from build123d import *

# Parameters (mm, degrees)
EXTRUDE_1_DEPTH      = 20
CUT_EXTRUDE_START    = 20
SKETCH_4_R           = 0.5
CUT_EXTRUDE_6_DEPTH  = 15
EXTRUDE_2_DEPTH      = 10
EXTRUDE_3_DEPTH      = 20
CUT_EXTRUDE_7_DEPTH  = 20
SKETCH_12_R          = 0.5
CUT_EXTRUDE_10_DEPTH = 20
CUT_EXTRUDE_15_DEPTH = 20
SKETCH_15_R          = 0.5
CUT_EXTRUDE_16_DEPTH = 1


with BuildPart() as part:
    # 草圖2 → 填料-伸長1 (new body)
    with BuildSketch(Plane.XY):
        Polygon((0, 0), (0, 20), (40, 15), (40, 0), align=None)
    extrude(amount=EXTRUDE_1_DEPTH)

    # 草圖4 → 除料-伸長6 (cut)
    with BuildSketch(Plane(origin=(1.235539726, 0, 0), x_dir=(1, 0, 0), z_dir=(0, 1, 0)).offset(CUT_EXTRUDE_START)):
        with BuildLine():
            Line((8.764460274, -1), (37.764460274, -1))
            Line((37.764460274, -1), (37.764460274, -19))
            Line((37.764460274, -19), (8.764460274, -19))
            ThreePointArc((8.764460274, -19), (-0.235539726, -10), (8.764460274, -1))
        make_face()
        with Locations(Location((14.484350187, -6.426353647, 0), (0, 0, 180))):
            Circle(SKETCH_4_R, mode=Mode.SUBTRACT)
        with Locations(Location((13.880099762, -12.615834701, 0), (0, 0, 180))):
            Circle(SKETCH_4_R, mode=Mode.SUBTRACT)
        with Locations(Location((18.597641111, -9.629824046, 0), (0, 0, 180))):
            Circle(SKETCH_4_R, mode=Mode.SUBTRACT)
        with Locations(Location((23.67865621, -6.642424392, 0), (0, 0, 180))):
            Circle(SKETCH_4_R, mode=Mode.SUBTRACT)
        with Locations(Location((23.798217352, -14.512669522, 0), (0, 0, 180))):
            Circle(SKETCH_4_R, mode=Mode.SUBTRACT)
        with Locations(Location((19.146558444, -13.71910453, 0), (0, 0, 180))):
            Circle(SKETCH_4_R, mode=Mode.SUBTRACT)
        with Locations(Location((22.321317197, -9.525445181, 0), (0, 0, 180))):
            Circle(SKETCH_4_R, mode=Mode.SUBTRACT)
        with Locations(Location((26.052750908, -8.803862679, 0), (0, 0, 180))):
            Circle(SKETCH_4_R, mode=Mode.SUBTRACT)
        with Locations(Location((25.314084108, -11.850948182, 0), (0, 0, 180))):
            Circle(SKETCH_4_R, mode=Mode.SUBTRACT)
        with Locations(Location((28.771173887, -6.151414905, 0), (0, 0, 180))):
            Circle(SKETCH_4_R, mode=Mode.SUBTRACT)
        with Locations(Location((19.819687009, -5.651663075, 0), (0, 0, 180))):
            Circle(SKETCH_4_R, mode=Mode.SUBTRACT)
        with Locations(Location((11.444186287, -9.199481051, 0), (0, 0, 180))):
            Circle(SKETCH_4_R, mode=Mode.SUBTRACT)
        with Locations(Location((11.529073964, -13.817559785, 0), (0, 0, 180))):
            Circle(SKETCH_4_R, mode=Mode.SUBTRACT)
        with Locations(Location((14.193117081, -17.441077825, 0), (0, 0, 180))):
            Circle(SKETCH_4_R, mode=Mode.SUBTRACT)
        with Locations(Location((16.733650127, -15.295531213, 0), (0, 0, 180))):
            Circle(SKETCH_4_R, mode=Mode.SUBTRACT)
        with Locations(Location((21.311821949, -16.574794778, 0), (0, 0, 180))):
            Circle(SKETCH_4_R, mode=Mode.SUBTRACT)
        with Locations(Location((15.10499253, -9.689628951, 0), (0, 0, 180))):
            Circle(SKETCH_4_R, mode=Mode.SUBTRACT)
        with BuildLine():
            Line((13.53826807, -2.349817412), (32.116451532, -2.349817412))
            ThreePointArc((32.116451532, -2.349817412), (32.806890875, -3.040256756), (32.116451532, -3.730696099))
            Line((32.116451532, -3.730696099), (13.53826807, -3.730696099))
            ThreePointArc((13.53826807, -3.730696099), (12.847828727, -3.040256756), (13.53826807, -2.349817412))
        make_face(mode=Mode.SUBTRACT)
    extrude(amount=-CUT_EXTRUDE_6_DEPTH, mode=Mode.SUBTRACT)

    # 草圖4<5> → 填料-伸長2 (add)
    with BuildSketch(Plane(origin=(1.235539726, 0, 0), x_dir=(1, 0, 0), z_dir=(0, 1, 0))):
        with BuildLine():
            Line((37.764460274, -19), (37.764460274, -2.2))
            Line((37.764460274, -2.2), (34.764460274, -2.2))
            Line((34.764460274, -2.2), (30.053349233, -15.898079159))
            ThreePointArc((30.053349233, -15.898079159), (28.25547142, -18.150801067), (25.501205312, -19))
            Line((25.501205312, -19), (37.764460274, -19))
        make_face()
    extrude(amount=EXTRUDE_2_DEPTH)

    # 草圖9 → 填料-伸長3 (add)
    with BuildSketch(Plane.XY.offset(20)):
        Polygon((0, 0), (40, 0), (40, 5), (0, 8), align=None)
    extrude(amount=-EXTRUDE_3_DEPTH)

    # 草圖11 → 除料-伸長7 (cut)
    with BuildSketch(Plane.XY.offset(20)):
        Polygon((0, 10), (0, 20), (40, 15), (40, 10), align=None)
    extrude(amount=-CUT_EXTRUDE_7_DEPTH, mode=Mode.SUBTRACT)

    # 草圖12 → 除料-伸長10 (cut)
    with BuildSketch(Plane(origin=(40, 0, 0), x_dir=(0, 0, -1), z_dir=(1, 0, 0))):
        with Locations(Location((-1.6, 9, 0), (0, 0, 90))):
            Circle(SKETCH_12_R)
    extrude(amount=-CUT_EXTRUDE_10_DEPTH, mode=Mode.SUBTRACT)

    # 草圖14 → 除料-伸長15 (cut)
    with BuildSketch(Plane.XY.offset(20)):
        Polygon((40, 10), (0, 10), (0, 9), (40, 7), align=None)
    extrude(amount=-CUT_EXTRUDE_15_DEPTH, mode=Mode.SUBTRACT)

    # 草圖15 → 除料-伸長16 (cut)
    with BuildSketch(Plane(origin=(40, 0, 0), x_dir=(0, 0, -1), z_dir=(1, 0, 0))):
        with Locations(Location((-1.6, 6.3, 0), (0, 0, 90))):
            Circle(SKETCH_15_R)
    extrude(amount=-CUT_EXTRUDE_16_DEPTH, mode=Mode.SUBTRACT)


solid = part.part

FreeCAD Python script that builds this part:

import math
import FreeCAD as App
import Part
import Sketcher

V = App.Vector
Q = App.Units.Quantity


def add_polygon(sketch, points):
    """Adds a closed chain of lines whose ends are joined by coincident constraints."""
    first, n = sketch.GeometryCount, len(points)
    for a, b in zip(points, points[1:] + points[:1]):
        sketch.addGeometry(Part.LineSegment(App.Vector(*a, 0), App.Vector(*b, 0)), False)
    for i in range(n):
        sketch.addConstraint(Sketcher.Constraint("Coincident", first + i, 2, first + (i + 1) % n, 1))

doc = App.newDocument("Part")
body = doc.addObject("PartDesign::Body", "Body")

sketch1 = body.newObject("Sketcher::SketchObject", "Sketch")
sketch1.AttachmentSupport = (doc.getObject("XY_Plane"), [""])
sketch1.MapMode = "FlatFace"
add_polygon(sketch1, [(0, 20), (0, 0), (40, 0), (40, 15)])
sketch1.addConstraint([
    Sketcher.Constraint("Vertical", 0),
    Sketcher.Constraint("Horizontal", 1),
    Sketcher.Constraint("Vertical", 2),
    Sketcher.Constraint("Coincident", 0, 2, -1, 1),
    Sketcher.Constraint("DistanceX", 1, 1, 1, 2, Q("40 mm")),
    Sketcher.Constraint("DistanceY", 0, 2, 0, 1, Q("20 mm")),
    Sketcher.Constraint("DistanceY", 2, 1, 2, 2, Q("15 mm")),
])
pad1 = body.newObject("PartDesign::Pad", "Pad")
pad1.Profile = sketch1
pad1.Length = 20

sketch2 = body.newObject("Sketcher::SketchObject", "Sketch001")
sketch2.AttachmentSupport = (doc.getObject("XZ_Plane"), [""])
sketch2.MapMode = "FlatFace"
sketch2.AttachmentOffset = App.Placement(V(0, 0, -20), App.Rotation())
sketch2.addGeometry([
    Part.LineSegment(V(39, 1, 0), V(10, 1, 0)),
    Part.ArcOfCircle(Part.Circle(V(10, 10, 0), V(0, 0, 1), 9), math.radians(90), math.radians(270)),
    Part.LineSegment(V(10, 19, 0), V(39, 19, 0)),
    Part.LineSegment(V(39, 19, 0), V(39, 1, 0)),
    Part.Circle(V(25.033757, 14.51267, 0), V(0, 0, 1), 0.5),
    Part.Circle(V(26.549624, 11.850948, 0), V(0, 0, 1), 0.5),
    Part.Circle(V(22.547362, 16.574795, 0), V(0, 0, 1), 0.5),
    Part.Circle(V(17.96919, 15.295531, 0), V(0, 0, 1), 0.5),
    Part.Circle(V(15.428657, 17.441078, 0), V(0, 0, 1), 0.5),
    Part.Circle(V(20.382098, 13.719105, 0), V(0, 0, 1), 0.5),
    Part.Circle(V(15.115639, 12.615835, 0), V(0, 0, 1), 0.5),
    Part.Circle(V(12.764614, 13.81756, 0), V(0, 0, 1), 0.5),
    Part.Circle(V(27.288291, 8.803863, 0), V(0, 0, 1), 0.5),
    Part.Circle(V(23.556857, 9.525445, 0), V(0, 0, 1), 0.5),
    Part.Circle(V(24.914196, 6.642424, 0), V(0, 0, 1), 0.5),
    Part.Circle(V(30.006714, 6.151415, 0), V(0, 0, 1), 0.5),
    Part.LineSegment(V(14.773808, 2.349817, 0), V(33.351991, 2.349817, 0)),
    Part.ArcOfCircle(Part.Circle(V(33.351991, 3.040257, 0), V(0, 0, 1), 0.690439), math.radians(-90), math.radians(90)),
    Part.LineSegment(V(33.351991, 3.730696, 0), V(14.773808, 3.730696, 0)),
    Part.ArcOfCircle(Part.Circle(V(14.773808, 3.040257, 0), V(0, 0, 1), 0.690439), math.radians(90), math.radians(270)),
    Part.Circle(V(19.833181, 9.629824, 0), V(0, 0, 1), 0.5),
    Part.Circle(V(16.340532, 9.689629, 0), V(0, 0, 1), 0.5),
    Part.Circle(V(12.679726, 9.199481, 0), V(0, 0, 1), 0.5),
    Part.Circle(V(15.71989, 6.426354, 0), V(0, 0, 1), 0.5),
    Part.Circle(V(21.055227, 5.651663, 0), V(0, 0, 1), 0.5),
], False)
sketch2.addConstraint([
    Sketcher.Constraint("Tangent", 0, 2, 1, 2),
    Sketcher.Constraint("Tangent", 1, 1, 2, 1),
    Sketcher.Constraint("Coincident", 2, 2, 3, 1),
    Sketcher.Constraint("Coincident", 3, 2, 0, 1),
    Sketcher.Constraint("Tangent", 16, 2, 17, 1),
    Sketcher.Constraint("Tangent", 17, 2, 18, 1),
    Sketcher.Constraint("Tangent", 18, 2, 19, 1),
    Sketcher.Constraint("Tangent", 19, 2, 16, 1),
    Sketcher.Constraint("Horizontal", 0),
    Sketcher.Constraint("Horizontal", 2),
    Sketcher.Constraint("Vertical", 3),
    Sketcher.Constraint("Horizontal", 16),
    Sketcher.Constraint("Horizontal", 18),
    Sketcher.Constraint("Equal", 4, 5),
    Sketcher.Constraint("Equal", 5, 6),
    Sketcher.Constraint("Equal", 6, 7),
    Sketcher.Constraint("Equal", 7, 8),
    Sketcher.Constraint("Equal", 8, 9),
    Sketcher.Constraint("Equal", 9, 10),
    Sketcher.Constraint("Equal", 10, 11),
    Sketcher.Constraint("Equal", 11, 12),
    Sketcher.Constraint("Equal", 12, 13),
    Sketcher.Constraint("Equal", 13, 14),
    Sketcher.Constraint("Equal", 14, 15),
    Sketcher.Constraint("Equal", 15, 20),
    Sketcher.Constraint("Equal", 20, 21),
    Sketcher.Constraint("Equal", 21, 22),
    Sketcher.Constraint("Equal", 22, 23),
    Sketcher.Constraint("Equal", 23, 24),
    Sketcher.Constraint("Diameter", 4, Q("1 mm")),
    Sketcher.Constraint("Radius", 1, Q("9 mm")),
    Sketcher.Constraint("DistanceX", 0, 2, 0, 1, Q("29 mm")),
    Sketcher.Constraint("DistanceX", -1, 1, 1, 3, Q("10 mm")),
    Sketcher.Constraint("DistanceY", -1, 1, 1, 3, Q("10 mm")),
    Sketcher.Constraint("Radius", 17, Q("0.690439 mm")),
    Sketcher.Constraint("DistanceX", -1, 1, 9, 3, Q("20.382098 mm")),
    Sketcher.Constraint("DistanceX", 8, 3, 4, 3, Q("9.6051 mm")),
    Sketcher.Constraint("DistanceX", 7, 3, 12, 3, Q("9.319101 mm")),
    Sketcher.Constraint("DistanceX", 13, 3, 4, 3, Q("1.4769 mm")),
    Sketcher.Constraint("DistanceX", 12, 3, 17, 3, Q("6.063701 mm")),
    Sketcher.Constraint("DistanceY", 14, 3, 20, 3, Q("2.9874 mm")),
    Sketcher.Constraint("DistanceX", 16, 1, 16, 2, Q("18.578183 mm")),
    Sketcher.Constraint("DistanceY", -1, 1, 4, 3, Q("14.51267 mm")),
    Sketcher.Constraint("DistanceY", -1, 1, 5, 3, Q("11.850948 mm")),
    Sketcher.Constraint("DistanceX", -1, 1, 6, 3, Q("22.547362 mm")),
    Sketcher.Constraint("DistanceX", -1, 1, 7, 3, Q("17.96919 mm")),
    Sketcher.Constraint("DistanceY", -1, 1, 7, 3, Q("15.295531 mm")),
    Sketcher.Constraint("DistanceX", -1, 1, 10, 3, Q("15.115639 mm")),
    Sketcher.Constraint("DistanceY", -1, 1, 11, 3, Q("13.81756 mm")),
    Sketcher.Constraint("DistanceX", -1, 1, 20, 3, Q("19.833181 mm")),
    Sketcher.Constraint("DistanceY", -1, 1, 21, 3, Q("9.689629 mm")),
    Sketcher.Constraint("DistanceY", -1, 1, 22, 3, Q("9.199481 mm")),
    Sketcher.Constraint("DistanceX", -1, 1, 23, 3, Q("15.71989 mm")),
    Sketcher.Constraint("DistanceY", 4, 3, 8, 3, Q("2.928408 mm")),
    Sketcher.Constraint("DistanceY", 9, 3, 6, 3, Q("2.85569 mm")),
    Sketcher.Constraint("DistanceX", 9, 3, 4, 3, Q("4.651659 mm")),
    Sketcher.Constraint("DistanceY", 10, 3, 9, 3, Q("1.10327 mm")),
    Sketcher.Constraint("DistanceY", 12, 3, 9, 3, Q("4.915242 mm")),
    Sketcher.Constraint("DistanceY", 12, 3, 7, 3, Q("6.491669 mm")),
    Sketcher.Constraint("DistanceY", 13, 3, 9, 3, Q("4.193659 mm")),
    Sketcher.Constraint("DistanceX", 13, 3, 14, 3, Q("1.357339 mm")),
    Sketcher.Constraint("DistanceY", 14, 3, 13, 3, Q("2.883021 mm")),
    Sketcher.Constraint("DistanceY", 15, 3, 14, 3, Q("0.491009 mm")),
    Sketcher.Constraint("DistanceX", 5, 3, 15, 3, Q("3.45709 mm")),
    Sketcher.Constraint("DistanceY", 17, 3, 15, 3, Q("3.111158 mm")),
    Sketcher.Constraint("DistanceX", 21, 3, 20, 3, Q("3.492649 mm")),
    Sketcher.Constraint("DistanceX", 11, 3, 21, 3, Q("3.575919 mm")),
    Sketcher.Constraint("DistanceX", 22, 3, 19, 3, Q("2.094082 mm")),
    Sketcher.Constraint("DistanceY", 23, 3, 20, 3, Q("3.20347 mm")),
    Sketcher.Constraint("DistanceX", 24, 3, 14, 3, Q("3.858969 mm")),
    Sketcher.Constraint("DistanceY", 24, 3, 14, 3, Q("0.990761 mm")),
    Sketcher.Constraint("DistanceX", -1, 1, 5, 3, Q("26.549624 mm")),
])
pocket1 = body.newObject("PartDesign::Pocket", "Pocket")
pocket1.Profile = sketch2
pocket1.Length = 15
pocket1.Reversed = True

sketch3 = body.newObject("Sketcher::SketchObject", "Sketch002")
sketch3.AttachmentSupport = (doc.getObject("XZ_Plane"), [""])
sketch3.MapMode = "FlatFace"
sketch3.addGeometry([
    Part.LineSegment(V(39, 19, 0), V(39, 2.2, 0)),
    Part.LineSegment(V(39, 2.2, 0), V(36, 2.2, 0)),
    Part.LineSegment(V(36, 2.2, 0), V(31.288889, 15.898079, 0)),
    Part.ArcOfCircle(Part.Circle(V(26.736745, 14.108849, 0), V(0, 0, 1), 4.891151), math.radians(21.457418), math.radians(90)),
    Part.LineSegment(V(26.736745, 19, 0), V(39, 19, 0)),
], False)
sketch3.addConstraint([
    Sketcher.Constraint("Coincident", 0, 2, 1, 1),
    Sketcher.Constraint("Coincident", 1, 2, 2, 1),
    Sketcher.Constraint("Coincident", 2, 2, 3, 1),
    Sketcher.Constraint("Tangent", 3, 2, 4, 1),
    Sketcher.Constraint("Coincident", 4, 2, 0, 1),
    Sketcher.Constraint("Vertical", 0),
    Sketcher.Constraint("Horizontal", 1),
    Sketcher.Constraint("Horizontal", 4),
    Sketcher.Constraint("DistanceX", 1, 2, 1, 1, Q("3 mm")),
    Sketcher.Constraint("DistanceY", 0, 2, 0, 1, Q("16.8 mm")),
    Sketcher.Constraint("DistanceX", -1, 1, 0, 2, Q("39 mm")),
    Sketcher.Constraint("DistanceY", -1, 1, 3, 2, Q("19 mm")),
    Sketcher.Constraint("Radius", 3, Q("4.891151 mm")),
    Sketcher.Constraint("DistanceX", 4, 1, 4, 2, Q("12.263255 mm")),
    Sketcher.Constraint("DistanceX", -1, 1, 2, 2, Q("31.288889 mm")),
])
pad2 = body.newObject("PartDesign::Pad", "Pad001")
pad2.Profile = sketch3
pad2.Length = 10
pad2.Reversed = True

sketch4 = body.newObject("Sketcher::SketchObject", "Sketch003")
sketch4.AttachmentSupport = (doc.getObject("XY_Plane"), [""])
sketch4.MapMode = "FlatFace"
sketch4.AttachmentOffset = App.Placement(V(0, 0, 20), App.Rotation())
add_polygon(sketch4, [(0, 0), (40, 0), (40, 5), (0, 8)])
sketch4.addConstraint([
    Sketcher.Constraint("Horizontal", 0),
    Sketcher.Constraint("Vertical", 1),
    Sketcher.Constraint("Vertical", 3),
    Sketcher.Constraint("Coincident", 3, 2, -1, 1),
    Sketcher.Constraint("DistanceX", 0, 1, 0, 2, Q("40 mm")),
    Sketcher.Constraint("DistanceY", 1, 1, 1, 2, Q("5 mm")),
    Sketcher.Constraint("DistanceY", 3, 2, 3, 1, Q("8 mm")),
])
pad3 = body.newObject("PartDesign::Pad", "Pad002")
pad3.Profile = sketch4
pad3.Length = 20
pad3.Reversed = True

sketch5 = body.newObject("Sketcher::SketchObject", "Sketch004")
sketch5.AttachmentSupport = (doc.getObject("XY_Plane"), [""])
sketch5.MapMode = "FlatFace"
sketch5.AttachmentOffset = App.Placement(V(0, 0, 20), App.Rotation())
add_polygon(sketch5, [(0, 20), (0, 10), (40, 10), (40, 15)])
sketch5.addConstraint([
    Sketcher.Constraint("Vertical", 0),
    Sketcher.Constraint("Horizontal", 1),
    Sketcher.Constraint("Vertical", 2),
    Sketcher.Constraint("PointOnObject", 0, 2, -2),
    Sketcher.Constraint("DistanceX", 1, 1, 1, 2, Q("40 mm")),
    Sketcher.Constraint("DistanceY", 0, 2, 0, 1, Q("10 mm")),
    Sketcher.Constraint("DistanceY", 2, 1, 2, 2, Q("5 mm")),
    Sketcher.Constraint("DistanceY", -1, 1, 0, 2, Q("10 mm")),
])
pocket2 = body.newObject("PartDesign::Pocket", "Pocket001")
pocket2.Profile = sketch5
pocket2.Length = 20

sketch6 = body.newObject("Sketcher::SketchObject", "Sketch005")
sketch6.AttachmentSupport = (doc.getObject("YZ_Plane"), [""])
sketch6.MapMode = "FlatFace"
sketch6.AttachmentOffset = App.Placement(V(0, 0, 40), App.Rotation())
sketch6.addGeometry(Part.Circle(V(9, 1.6, 0), V(0, 0, 1), 0.5), False)
sketch6.addConstraint([
    Sketcher.Constraint("Diameter", 0, Q("1 mm")),
    Sketcher.Constraint("DistanceX", -1, 1, 0, 3, Q("9 mm")),
    Sketcher.Constraint("DistanceY", -1, 1, 0, 3, Q("1.6 mm")),
])
pocket3 = body.newObject("PartDesign::Pocket", "Pocket002")
pocket3.Profile = sketch6
pocket3.Length = 20

sketch7 = body.newObject("Sketcher::SketchObject", "Sketch006")
sketch7.AttachmentSupport = (doc.getObject("XY_Plane"), [""])
sketch7.MapMode = "FlatFace"
sketch7.AttachmentOffset = App.Placement(V(0, 0, 20), App.Rotation())
add_polygon(sketch7, [(40, 10), (0, 10), (0, 9), (40, 7)])
sketch7.addConstraint([
    Sketcher.Constraint("Horizontal", 0),
    Sketcher.Constraint("Vertical", 1),
    Sketcher.Constraint("Vertical", 3),
    Sketcher.Constraint("PointOnObject", 0, 2, -2),
    Sketcher.Constraint("DistanceX", 0, 2, 0, 1, Q("40 mm")),
    Sketcher.Constraint("DistanceY", 1, 2, 1, 1, Q("1 mm")),
    Sketcher.Constraint("DistanceY", 3, 1, 3, 2, Q("3 mm")),
    Sketcher.Constraint("DistanceY", -1, 1, 0, 2, Q("10 mm")),
])
pocket4 = body.newObject("PartDesign::Pocket", "Pocket003")
pocket4.Profile = sketch7
pocket4.Length = 20

sketch8 = body.newObject("Sketcher::SketchObject", "Sketch007")
sketch8.AttachmentSupport = (doc.getObject("YZ_Plane"), [""])
sketch8.MapMode = "FlatFace"
sketch8.AttachmentOffset = App.Placement(V(0, 0, 40), App.Rotation())
sketch8.addGeometry(Part.Circle(V(6.3, 1.6, 0), V(0, 0, 1), 0.5), False)
sketch8.addConstraint([
    Sketcher.Constraint("Diameter", 0, Q("1 mm")),
    Sketcher.Constraint("DistanceX", -1, 1, 0, 3, Q("6.3 mm")),
    Sketcher.Constraint("DistanceY", -1, 1, 0, 3, Q("1.6 mm")),
])
pocket5 = body.newObject("PartDesign::Pocket", "Pocket004")
pocket5.Profile = sketch8
pocket5.Length = 1

doc.recompute()
